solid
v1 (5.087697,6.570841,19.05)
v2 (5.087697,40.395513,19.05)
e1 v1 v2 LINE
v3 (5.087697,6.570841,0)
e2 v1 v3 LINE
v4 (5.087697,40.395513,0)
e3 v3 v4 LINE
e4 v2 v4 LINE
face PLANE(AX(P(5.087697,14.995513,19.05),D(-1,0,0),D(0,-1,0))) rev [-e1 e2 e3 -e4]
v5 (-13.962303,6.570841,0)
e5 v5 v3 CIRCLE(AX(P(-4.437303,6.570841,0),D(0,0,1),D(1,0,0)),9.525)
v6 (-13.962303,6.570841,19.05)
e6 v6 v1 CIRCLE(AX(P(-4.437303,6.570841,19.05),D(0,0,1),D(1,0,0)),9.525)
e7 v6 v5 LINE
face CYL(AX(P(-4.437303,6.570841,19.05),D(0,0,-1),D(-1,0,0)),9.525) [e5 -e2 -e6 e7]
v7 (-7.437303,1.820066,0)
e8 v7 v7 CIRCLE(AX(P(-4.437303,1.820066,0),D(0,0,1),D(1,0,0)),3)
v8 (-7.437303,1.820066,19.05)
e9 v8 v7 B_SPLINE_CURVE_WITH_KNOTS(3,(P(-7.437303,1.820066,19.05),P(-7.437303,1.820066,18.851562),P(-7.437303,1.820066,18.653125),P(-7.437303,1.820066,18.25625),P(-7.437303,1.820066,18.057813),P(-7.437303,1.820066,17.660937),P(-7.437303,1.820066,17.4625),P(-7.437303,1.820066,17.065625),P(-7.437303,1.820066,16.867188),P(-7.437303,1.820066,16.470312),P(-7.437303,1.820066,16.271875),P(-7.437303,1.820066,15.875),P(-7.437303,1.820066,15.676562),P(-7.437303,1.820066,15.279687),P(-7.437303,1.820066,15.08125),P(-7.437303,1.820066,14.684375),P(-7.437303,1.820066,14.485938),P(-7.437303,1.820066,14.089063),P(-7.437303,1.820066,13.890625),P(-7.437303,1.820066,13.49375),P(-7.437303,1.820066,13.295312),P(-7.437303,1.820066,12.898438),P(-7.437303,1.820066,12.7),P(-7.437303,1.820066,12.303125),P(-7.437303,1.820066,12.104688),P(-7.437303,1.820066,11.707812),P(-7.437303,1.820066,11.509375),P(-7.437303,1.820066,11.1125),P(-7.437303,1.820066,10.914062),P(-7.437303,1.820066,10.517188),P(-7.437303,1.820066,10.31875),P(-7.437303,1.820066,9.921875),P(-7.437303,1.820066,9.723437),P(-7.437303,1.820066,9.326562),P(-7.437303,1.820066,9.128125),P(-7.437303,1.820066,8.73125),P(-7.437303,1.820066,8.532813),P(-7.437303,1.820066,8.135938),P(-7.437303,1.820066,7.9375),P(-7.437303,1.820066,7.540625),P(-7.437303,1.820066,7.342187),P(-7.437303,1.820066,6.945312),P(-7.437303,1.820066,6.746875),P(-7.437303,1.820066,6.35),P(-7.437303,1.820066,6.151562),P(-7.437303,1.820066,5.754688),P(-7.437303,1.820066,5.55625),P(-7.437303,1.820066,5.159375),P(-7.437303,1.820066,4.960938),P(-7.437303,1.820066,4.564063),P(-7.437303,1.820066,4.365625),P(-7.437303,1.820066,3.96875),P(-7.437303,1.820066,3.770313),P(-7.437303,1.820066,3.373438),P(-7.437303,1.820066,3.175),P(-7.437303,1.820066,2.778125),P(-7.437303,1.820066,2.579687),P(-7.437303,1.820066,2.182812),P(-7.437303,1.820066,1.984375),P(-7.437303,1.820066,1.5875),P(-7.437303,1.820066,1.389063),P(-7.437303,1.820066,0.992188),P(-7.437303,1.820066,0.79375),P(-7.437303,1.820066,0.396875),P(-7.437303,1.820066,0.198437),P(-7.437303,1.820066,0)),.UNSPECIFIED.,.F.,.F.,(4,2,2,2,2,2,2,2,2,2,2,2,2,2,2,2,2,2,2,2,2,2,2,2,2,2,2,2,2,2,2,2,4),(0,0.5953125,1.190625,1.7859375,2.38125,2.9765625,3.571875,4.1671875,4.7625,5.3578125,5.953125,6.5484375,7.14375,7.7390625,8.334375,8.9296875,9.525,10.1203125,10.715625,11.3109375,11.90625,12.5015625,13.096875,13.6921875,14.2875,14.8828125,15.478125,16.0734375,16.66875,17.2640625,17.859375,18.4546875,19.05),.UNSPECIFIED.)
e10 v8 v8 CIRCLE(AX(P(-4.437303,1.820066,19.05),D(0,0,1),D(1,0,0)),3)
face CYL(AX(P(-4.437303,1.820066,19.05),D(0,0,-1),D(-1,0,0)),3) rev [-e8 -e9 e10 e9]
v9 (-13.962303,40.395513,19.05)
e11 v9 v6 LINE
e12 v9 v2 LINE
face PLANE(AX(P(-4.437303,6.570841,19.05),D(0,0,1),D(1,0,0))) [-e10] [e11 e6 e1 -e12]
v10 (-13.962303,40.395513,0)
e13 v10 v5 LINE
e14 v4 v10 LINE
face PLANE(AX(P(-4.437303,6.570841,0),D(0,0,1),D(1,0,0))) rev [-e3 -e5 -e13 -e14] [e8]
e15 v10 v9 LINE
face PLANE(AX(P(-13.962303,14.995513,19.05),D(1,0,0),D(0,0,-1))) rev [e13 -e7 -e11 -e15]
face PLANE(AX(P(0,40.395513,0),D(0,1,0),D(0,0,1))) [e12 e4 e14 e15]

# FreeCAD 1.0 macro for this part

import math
import FreeCAD as App
import Part
import Sketcher
Q = App.Units.Quantity


def add_polygon(sketch, points):
    """Adds a closed chain of lines whose ends are joined by coincident constraints."""
    first, n = sketch.GeometryCount, len(points)
    for a, b in zip(points, points[1:] + points[:1]):
        sketch.addGeometry(Part.LineSegment(App.Vector(*a, 0), App.Vector(*b, 0)), False)
    for i in range(n):
        sketch.addConstraint(Sketcher.Constraint("Coincident", first + i, 2, first + (i + 1) % n, 1))

doc = App.newDocument("Part")
body = doc.addObject("PartDesign::Body", "Body")

sketch1 = body.newObject("Sketcher::SketchObject", "Sketch")
sketch1.AttachmentSupport = (doc.getObject("XY_Plane"), [""])
sketch1.MapMode = "FlatFace"
sketch1.addGeometry([
    Part.LineSegment(App.Vector(5.1, 15, 0), App.Vector(-14, 15, 0)),
    Part.LineSegment(App.Vector(-14, 15, 0), App.Vector(-14, 6.6, 0)),
    Part.ArcOfCircle(Part.Circle(App.Vector(-4.4, 6.6, 0), App.Vector(0, 0, 1), 9.5), math.radians(180), math.radians(360)),
    Part.LineSegment(App.Vector(5.1, 6.6, 0), App.Vector(5.1, 15, 0)),
    Part.Circle(App.Vector(-4.4, 1.8, 0), App.Vector(0, 0, 1), 3),
], False)
sketch1.addConstraint([
    Sketcher.Constraint("Coincident", 0, 2, 1, 1),
    Sketcher.Constraint("Tangent", 1, 2, 2, 1),
    Sketcher.Constraint("Tangent", 2, 2, 3, 1),
    Sketcher.Constraint("Coincident", 3, 2, 0, 1),
    Sketcher.Constraint("Horizontal", 0),
    Sketcher.Constraint("Vertical", 1),
    Sketcher.Constraint("Vertical", 3),
    Sketcher.Constraint("Vertical", 2, 3, 4, 3),
    Sketcher.Constraint("Radius", 2, Q("0.375 in")),
    Sketcher.Constraint("Diameter", 4, 6.0),
    Sketcher.Constraint("DistanceY", 1, 2, 1, 1, 8.424672),
    Sketcher.Constraint("DistanceY", -1, 1, 2, 3, 6.570841),
    Sketcher.Constraint("DistanceX", 2, 3, -1, 1, 4.437303),
    Sketcher.Constraint("DistanceY", -1, 1, 4, 3, 1.820066),
])
pad1 = body.newObject("PartDesign::Pad", "Pad")
pad1.Profile = sketch1
pad1.Length = Q("0.75 in")

sketch2 = body.newObject("Sketcher::SketchObject", "Sketch001")
sketch2.AttachmentSupport = (doc.getObject("XZ_Plane"), [""])
sketch2.MapMode = "FlatFace"
sketch2.AttachmentOffset = App.Placement(App.Vector(0, 0, -14.995513), App.Rotation())
add_polygon(sketch2, [(-14, 0), (-14, 19), (5, 19), (5, 0)])
sketch2.addConstraint([
    Sketcher.Constraint("Vertical", 0),
    Sketcher.Constraint("Horizontal", 1),
    Sketcher.Constraint("Vertical", 2),
    Sketcher.Constraint("Horizontal", 3),
    Sketcher.Constraint("PointOnObject", 2, 2, -1),
    Sketcher.Constraint("Equal", 3, 0),
    Sketcher.Constraint("DistanceX", 1, 1, 1, 2, Q("0.75 in")),
    Sketcher.Constraint("DistanceX", 0, 2, -1, 1, 13.962303),
])
pad2 = body.newObject("PartDesign::Pad", "Pad001")
pad2.Profile = sketch2
pad2.Length = Q("1 in")
pad2.Reversed = True

doc.recompute()
